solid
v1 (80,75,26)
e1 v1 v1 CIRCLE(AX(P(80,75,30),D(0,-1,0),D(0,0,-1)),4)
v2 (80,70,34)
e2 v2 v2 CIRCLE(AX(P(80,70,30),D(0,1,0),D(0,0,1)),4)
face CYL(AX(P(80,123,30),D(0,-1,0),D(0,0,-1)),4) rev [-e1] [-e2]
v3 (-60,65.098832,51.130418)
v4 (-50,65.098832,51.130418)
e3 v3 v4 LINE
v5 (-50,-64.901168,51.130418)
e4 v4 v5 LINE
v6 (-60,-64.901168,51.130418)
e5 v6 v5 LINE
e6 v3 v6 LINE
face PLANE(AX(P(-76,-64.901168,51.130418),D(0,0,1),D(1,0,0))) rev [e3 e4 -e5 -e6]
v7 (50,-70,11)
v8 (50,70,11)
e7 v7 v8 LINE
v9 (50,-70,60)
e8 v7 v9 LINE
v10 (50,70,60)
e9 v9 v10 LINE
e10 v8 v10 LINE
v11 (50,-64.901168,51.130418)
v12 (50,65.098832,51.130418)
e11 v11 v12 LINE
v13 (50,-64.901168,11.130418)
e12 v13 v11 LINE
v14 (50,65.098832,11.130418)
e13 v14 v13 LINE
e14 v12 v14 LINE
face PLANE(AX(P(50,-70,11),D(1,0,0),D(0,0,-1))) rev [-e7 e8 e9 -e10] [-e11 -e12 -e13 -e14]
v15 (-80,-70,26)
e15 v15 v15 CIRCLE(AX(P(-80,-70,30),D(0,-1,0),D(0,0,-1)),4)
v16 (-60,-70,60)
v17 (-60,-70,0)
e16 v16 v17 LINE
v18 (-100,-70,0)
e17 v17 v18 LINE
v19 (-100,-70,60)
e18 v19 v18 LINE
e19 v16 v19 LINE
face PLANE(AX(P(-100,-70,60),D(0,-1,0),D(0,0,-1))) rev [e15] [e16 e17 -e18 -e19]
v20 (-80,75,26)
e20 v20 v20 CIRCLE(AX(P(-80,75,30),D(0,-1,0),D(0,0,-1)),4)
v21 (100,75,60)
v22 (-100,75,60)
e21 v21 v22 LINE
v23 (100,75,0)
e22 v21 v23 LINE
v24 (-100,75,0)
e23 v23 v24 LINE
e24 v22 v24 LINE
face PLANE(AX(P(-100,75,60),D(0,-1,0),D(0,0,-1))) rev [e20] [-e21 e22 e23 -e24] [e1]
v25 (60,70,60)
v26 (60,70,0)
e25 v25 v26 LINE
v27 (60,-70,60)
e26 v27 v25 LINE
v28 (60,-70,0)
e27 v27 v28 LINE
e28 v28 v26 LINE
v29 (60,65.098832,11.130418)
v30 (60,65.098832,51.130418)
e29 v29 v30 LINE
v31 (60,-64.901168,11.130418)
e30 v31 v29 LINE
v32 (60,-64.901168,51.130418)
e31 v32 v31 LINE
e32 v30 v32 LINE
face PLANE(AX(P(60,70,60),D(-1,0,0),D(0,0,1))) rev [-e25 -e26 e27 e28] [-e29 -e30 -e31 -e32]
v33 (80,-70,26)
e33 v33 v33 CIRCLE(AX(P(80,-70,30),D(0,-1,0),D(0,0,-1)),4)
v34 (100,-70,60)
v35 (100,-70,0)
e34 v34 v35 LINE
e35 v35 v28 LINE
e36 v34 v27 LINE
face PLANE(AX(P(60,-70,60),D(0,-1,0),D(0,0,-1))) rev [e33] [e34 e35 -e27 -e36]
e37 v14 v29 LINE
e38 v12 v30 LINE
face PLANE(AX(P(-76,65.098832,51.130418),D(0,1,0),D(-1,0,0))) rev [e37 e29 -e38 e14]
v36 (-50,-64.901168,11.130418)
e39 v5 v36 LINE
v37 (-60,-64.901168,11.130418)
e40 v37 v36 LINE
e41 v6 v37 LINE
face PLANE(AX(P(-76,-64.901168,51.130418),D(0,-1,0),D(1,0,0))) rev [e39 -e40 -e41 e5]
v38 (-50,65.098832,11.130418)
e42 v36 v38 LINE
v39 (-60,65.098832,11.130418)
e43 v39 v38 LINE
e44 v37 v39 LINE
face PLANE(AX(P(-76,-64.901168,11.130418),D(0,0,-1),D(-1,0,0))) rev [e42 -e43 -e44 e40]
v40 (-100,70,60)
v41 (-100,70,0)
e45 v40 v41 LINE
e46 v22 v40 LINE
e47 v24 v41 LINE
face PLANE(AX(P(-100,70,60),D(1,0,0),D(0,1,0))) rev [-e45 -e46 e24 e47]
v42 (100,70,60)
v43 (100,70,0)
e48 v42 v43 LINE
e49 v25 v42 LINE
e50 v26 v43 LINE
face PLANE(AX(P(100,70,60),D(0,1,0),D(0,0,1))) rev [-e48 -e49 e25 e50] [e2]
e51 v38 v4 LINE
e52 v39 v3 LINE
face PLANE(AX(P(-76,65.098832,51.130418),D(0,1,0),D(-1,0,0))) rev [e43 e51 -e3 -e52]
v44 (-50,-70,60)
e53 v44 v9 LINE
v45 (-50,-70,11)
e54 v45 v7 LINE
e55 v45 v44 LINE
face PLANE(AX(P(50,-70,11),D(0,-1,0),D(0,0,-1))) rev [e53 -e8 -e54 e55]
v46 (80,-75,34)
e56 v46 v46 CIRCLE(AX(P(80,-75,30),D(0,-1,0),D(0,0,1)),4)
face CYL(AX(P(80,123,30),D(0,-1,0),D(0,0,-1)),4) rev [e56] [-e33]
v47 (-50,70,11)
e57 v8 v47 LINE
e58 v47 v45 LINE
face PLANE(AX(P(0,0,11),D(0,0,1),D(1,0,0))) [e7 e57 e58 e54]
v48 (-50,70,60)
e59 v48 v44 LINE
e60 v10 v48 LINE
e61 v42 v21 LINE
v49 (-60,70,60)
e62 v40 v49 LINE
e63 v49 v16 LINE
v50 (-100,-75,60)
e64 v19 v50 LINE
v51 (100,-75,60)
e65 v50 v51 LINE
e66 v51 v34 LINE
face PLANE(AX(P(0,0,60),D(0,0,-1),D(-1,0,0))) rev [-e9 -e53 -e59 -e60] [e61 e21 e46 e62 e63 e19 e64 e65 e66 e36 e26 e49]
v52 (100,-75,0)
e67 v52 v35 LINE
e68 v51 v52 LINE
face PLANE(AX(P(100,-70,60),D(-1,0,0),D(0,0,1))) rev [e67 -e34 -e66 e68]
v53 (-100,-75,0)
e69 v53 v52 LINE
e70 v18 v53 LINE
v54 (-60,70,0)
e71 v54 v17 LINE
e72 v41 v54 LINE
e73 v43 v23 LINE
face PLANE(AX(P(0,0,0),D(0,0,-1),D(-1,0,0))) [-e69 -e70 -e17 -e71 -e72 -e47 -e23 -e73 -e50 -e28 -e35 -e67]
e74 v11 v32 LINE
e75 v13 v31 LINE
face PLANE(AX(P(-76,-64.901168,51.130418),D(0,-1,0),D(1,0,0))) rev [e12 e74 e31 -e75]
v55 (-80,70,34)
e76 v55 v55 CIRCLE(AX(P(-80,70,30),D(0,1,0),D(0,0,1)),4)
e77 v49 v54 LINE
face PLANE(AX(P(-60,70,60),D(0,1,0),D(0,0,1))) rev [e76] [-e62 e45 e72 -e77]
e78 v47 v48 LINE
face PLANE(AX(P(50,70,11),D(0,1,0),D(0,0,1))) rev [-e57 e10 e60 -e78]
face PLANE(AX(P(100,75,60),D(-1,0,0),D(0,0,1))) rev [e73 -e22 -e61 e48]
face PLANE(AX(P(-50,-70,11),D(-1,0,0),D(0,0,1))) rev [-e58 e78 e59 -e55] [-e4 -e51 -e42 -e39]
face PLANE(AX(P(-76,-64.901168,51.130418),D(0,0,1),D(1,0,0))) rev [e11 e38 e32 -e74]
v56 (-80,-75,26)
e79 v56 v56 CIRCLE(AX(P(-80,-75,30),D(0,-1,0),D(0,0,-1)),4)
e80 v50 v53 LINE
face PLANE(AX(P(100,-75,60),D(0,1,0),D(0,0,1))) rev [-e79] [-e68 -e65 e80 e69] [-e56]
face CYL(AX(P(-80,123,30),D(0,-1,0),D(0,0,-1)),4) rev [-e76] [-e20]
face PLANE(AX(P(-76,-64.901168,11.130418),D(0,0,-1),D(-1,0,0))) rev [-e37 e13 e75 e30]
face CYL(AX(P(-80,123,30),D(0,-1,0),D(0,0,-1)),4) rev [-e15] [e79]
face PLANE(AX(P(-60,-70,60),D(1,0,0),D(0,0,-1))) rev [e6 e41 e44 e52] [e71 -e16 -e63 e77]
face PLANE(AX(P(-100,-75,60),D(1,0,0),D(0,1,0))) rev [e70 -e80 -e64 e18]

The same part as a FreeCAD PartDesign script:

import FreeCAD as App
import Part
import Sketcher

V = App.Vector
Q = App.Units.Quantity

doc = App.newDocument("Part")
body = doc.addObject("PartDesign::Body", "Body")

# Sketch on XY plane
sketch1 = body.newObject("Sketcher::SketchObject", "Sketch")
sketch1.AttachmentSupport = (doc.getObject("XY_Plane"), [""])
sketch1.MapMode = "FlatFace"
sketch1.addGeometry([
    Part.LineSegment(V(100, 75, 0), V(-100, 75, 0)),  # 0
    Part.LineSegment(V(-100, 75, 0), V(-100, 70, 0)),  # 1
    Part.LineSegment(V(-100, 70, 0), V(-60, 70, 0)),  # 2
    Part.LineSegment(V(-60, 70, 0), V(-60, -70, 0)),  # 3
    Part.LineSegment(V(-60, -70, 0), V(-100, -70, 0)),  # 4
    Part.LineSegment(V(-100, -70, 0), V(-100, -75, 0)),  # 5
    Part.LineSegment(V(-100, -75, 0), V(100, -75, 0)),  # 6
    Part.LineSegment(V(100, -75, 0), V(100, -70, 0)),  # 7
    Part.LineSegment(V(100, -70, 0), V(60, -70, 0)),  # 8
    Part.LineSegment(V(60, -70, 0), V(60, 70, 0)),  # 9
    Part.LineSegment(V(60, 70, 0), V(100, 70, 0)),  # 10
    Part.LineSegment(V(100, 70, 0), V(100, 75, 0)),  # 11
], False)
sketch1.addConstraint([
    Sketcher.Constraint("Coincident", 0, 2, 1, 1),
    Sketcher.Constraint("Coincident", 1, 2, 2, 1),
    Sketcher.Constraint("Coincident", 2, 2, 3, 1),
    Sketcher.Constraint("Coincident", 3, 2, 4, 1),
    Sketcher.Constraint("Coincident", 4, 2, 5, 1),
    Sketcher.Constraint("Coincident", 5, 2, 6, 1),
    Sketcher.Constraint("Coincident", 6, 2, 7, 1),
    Sketcher.Constraint("Coincident", 7, 2, 8, 1),
    Sketcher.Constraint("Coincident", 8, 2, 9, 1),
    Sketcher.Constraint("Coincident", 9, 2, 10, 1),
    Sketcher.Constraint("Coincident", 10, 2, 11, 1),
    Sketcher.Constraint("Coincident", 11, 2, 0, 1),
    Sketcher.Constraint("Horizontal", 0),
    Sketcher.Constraint("Vertical", 1),
    Sketcher.Constraint("Horizontal", 2),
    Sketcher.Constraint("Vertical", 3),
    Sketcher.Constraint("Horizontal", 4),
    Sketcher.Constraint("Vertical", 5),
    Sketcher.Constraint("Horizontal", 6),
    Sketcher.Constraint("Vertical", 7),
    Sketcher.Constraint("Horizontal", 8),
    Sketcher.Constraint("Vertical", 9),
    Sketcher.Constraint("Horizontal", 10),
    Sketcher.Constraint("Vertical", 11),
    Sketcher.Constraint("Symmetric", 0, 2, 6, 2, -1, 1),
    Sketcher.Constraint("Symmetric", 2, 2, 8, 2, -1, 1),
    Sketcher.Constraint("Symmetric", 4, 2, 10, 2, -1, 1),
    Sketcher.Constraint("Symmetric", 4, 2, 7, 2, -2),
    Sketcher.Constraint("DistanceX", 0, 2, 0, 1, Q("200 mm")),
    Sketcher.Constraint("DistanceX", 2, 1, 2, 2, Q("40 mm")),
    Sketcher.Constraint("DistanceY", 1, 2, 1, 1, Q("5 mm")),
    Sketcher.Constraint("DistanceY", 3, 2, 3, 1, Q("140 mm")),
])
pad1 = body.newObject("PartDesign::Pad", "Pad")
pad1.Profile = sketch1
pad1.Length = 60

# Sketch on YZ plane
sketch2 = body.newObject("Sketcher::SketchObject", "Sketch001")
sketch2.AttachmentSupport = (doc.getObject("YZ_Plane"), [""])
sketch2.MapMode = "FlatFace"
sketch2.AttachmentOffset = App.Placement(V(0, 0, 60), App.Rotation())
sketch2.addGeometry([
    Part.LineSegment(V(65, 51, 0), V(-65, 51, 0)),
    Part.LineSegment(V(-65, 51, 0), V(-65, 11, 0)),
    Part.LineSegment(V(-65, 11, 0), V(65, 11, 0)),
    Part.LineSegment(V(65, 11, 0), V(65, 51, 0)),
], False)
sketch2.addConstraint([
    Sketcher.Constraint("Coincident", 0, 2, 1, 1),
    Sketcher.Constraint("Coincident", 1, 2, 2, 1),
    Sketcher.Constraint("Coincident", 2, 2, 3, 1),
    Sketcher.Constraint("Coincident", 3, 2, 0, 1),
    Sketcher.Constraint("Horizontal", 0),
    Sketcher.Constraint("Vertical", 1),
    Sketcher.Constraint("Horizontal", 2),
    Sketcher.Constraint("Vertical", 3),
    Sketcher.Constraint("DistanceX", 0, 2, 0, 1, Q("130 mm")),
    Sketcher.Constraint("DistanceY", 1, 2, 1, 1, Q("40 mm")),
    Sketcher.Constraint("DistanceX", 0, 2, -1, 1, Q("64.901168 mm")),
    Sketcher.Constraint("DistanceY", -1, 1, 0, 2, Q("51.130418 mm")),
])
pocket1 = body.newObject("PartDesign::Pocket", "Pocket")
pocket1.Profile = sketch2
pocket1.Length = 136

# Sketch on XY plane
sketch3 = body.newObject("Sketcher::SketchObject", "Sketch002")
sketch3.AttachmentSupport = (doc.getObject("XY_Plane"), [""])
sketch3.MapMode = "FlatFace"
sketch3.AttachmentOffset = App.Placement(V(0, 0, 60), App.Rotation())
sketch3.addGeometry([
    Part.LineSegment(V(-50, 70, 0), V(-50, -70, 0)),
    Part.LineSegment(V(-50, -70, 0), V(50, -70, 0)),
    Part.LineSegment(V(50, -70, 0), V(50, 70, 0)),
    Part.LineSegment(V(50, 70, 0), V(-50, 70, 0)),
], False)
sketch3.addConstraint([
    Sketcher.Constraint("Coincident", 0, 2, 1, 1),
    Sketcher.Constraint("Coincident", 1, 2, 2, 1),
    Sketcher.Constraint("Coincident", 2, 2, 3, 1),
    Sketcher.Constraint("Coincident", 3, 2, 0, 1),
    Sketcher.Constraint("Vertical", 0),
    Sketcher.Constraint("Horizontal", 1),
    Sketcher.Constraint("Vertical", 2),
    Sketcher.Constraint("Horizontal", 3),
    Sketcher.Constraint("Symmetric", 0, 2, 2, 2, -1, 1),
    Sketcher.Constraint("DistanceX", 1, 1, 1, 2, Q("100 mm")),
    Sketcher.Constraint("DistanceY", 0, 2, 0, 1, Q("140 mm")),
])
pocket2 = body.newObject("PartDesign::Pocket", "Pocket001")
pocket2.Profile = sketch3
pocket2.Length = 49

# Sketch on XZ plane
sketch4 = body.newObject("Sketcher::SketchObject", "Sketch003")
sketch4.AttachmentSupport = (doc.getObject("XZ_Plane"), [""])
sketch4.MapMode = "FlatFace"
sketch4.AttachmentOffset = App.Placement(V(0, 0, 75), App.Rotation())
sketch4.addGeometry([
    Part.Circle(V(-80, 30, 0), V(0, 0, 1), 4),
    Part.Circle(V(80, 30, 0), V(0, 0, 1), 4),
], False)
sketch4.addConstraint([
    Sketcher.Constraint("Equal", 0, 1),
    Sketcher.Constraint("Symmetric", 0, 3, 1, 3, -2),
    Sketcher.Constraint("Diameter", 0, Q("8 mm")),
    Sketcher.Constraint("DistanceX", 0, 3, -1, 1, Q("80 mm")),
    Sketcher.Constraint("DistanceY", -1, 1, 0, 3, Q("30 mm")),
])
pocket3 = body.newObject("PartDesign::Pocket", "Pocket002")
pocket3.Profile = sketch4
pocket3.Length = 198

doc.recompute()
